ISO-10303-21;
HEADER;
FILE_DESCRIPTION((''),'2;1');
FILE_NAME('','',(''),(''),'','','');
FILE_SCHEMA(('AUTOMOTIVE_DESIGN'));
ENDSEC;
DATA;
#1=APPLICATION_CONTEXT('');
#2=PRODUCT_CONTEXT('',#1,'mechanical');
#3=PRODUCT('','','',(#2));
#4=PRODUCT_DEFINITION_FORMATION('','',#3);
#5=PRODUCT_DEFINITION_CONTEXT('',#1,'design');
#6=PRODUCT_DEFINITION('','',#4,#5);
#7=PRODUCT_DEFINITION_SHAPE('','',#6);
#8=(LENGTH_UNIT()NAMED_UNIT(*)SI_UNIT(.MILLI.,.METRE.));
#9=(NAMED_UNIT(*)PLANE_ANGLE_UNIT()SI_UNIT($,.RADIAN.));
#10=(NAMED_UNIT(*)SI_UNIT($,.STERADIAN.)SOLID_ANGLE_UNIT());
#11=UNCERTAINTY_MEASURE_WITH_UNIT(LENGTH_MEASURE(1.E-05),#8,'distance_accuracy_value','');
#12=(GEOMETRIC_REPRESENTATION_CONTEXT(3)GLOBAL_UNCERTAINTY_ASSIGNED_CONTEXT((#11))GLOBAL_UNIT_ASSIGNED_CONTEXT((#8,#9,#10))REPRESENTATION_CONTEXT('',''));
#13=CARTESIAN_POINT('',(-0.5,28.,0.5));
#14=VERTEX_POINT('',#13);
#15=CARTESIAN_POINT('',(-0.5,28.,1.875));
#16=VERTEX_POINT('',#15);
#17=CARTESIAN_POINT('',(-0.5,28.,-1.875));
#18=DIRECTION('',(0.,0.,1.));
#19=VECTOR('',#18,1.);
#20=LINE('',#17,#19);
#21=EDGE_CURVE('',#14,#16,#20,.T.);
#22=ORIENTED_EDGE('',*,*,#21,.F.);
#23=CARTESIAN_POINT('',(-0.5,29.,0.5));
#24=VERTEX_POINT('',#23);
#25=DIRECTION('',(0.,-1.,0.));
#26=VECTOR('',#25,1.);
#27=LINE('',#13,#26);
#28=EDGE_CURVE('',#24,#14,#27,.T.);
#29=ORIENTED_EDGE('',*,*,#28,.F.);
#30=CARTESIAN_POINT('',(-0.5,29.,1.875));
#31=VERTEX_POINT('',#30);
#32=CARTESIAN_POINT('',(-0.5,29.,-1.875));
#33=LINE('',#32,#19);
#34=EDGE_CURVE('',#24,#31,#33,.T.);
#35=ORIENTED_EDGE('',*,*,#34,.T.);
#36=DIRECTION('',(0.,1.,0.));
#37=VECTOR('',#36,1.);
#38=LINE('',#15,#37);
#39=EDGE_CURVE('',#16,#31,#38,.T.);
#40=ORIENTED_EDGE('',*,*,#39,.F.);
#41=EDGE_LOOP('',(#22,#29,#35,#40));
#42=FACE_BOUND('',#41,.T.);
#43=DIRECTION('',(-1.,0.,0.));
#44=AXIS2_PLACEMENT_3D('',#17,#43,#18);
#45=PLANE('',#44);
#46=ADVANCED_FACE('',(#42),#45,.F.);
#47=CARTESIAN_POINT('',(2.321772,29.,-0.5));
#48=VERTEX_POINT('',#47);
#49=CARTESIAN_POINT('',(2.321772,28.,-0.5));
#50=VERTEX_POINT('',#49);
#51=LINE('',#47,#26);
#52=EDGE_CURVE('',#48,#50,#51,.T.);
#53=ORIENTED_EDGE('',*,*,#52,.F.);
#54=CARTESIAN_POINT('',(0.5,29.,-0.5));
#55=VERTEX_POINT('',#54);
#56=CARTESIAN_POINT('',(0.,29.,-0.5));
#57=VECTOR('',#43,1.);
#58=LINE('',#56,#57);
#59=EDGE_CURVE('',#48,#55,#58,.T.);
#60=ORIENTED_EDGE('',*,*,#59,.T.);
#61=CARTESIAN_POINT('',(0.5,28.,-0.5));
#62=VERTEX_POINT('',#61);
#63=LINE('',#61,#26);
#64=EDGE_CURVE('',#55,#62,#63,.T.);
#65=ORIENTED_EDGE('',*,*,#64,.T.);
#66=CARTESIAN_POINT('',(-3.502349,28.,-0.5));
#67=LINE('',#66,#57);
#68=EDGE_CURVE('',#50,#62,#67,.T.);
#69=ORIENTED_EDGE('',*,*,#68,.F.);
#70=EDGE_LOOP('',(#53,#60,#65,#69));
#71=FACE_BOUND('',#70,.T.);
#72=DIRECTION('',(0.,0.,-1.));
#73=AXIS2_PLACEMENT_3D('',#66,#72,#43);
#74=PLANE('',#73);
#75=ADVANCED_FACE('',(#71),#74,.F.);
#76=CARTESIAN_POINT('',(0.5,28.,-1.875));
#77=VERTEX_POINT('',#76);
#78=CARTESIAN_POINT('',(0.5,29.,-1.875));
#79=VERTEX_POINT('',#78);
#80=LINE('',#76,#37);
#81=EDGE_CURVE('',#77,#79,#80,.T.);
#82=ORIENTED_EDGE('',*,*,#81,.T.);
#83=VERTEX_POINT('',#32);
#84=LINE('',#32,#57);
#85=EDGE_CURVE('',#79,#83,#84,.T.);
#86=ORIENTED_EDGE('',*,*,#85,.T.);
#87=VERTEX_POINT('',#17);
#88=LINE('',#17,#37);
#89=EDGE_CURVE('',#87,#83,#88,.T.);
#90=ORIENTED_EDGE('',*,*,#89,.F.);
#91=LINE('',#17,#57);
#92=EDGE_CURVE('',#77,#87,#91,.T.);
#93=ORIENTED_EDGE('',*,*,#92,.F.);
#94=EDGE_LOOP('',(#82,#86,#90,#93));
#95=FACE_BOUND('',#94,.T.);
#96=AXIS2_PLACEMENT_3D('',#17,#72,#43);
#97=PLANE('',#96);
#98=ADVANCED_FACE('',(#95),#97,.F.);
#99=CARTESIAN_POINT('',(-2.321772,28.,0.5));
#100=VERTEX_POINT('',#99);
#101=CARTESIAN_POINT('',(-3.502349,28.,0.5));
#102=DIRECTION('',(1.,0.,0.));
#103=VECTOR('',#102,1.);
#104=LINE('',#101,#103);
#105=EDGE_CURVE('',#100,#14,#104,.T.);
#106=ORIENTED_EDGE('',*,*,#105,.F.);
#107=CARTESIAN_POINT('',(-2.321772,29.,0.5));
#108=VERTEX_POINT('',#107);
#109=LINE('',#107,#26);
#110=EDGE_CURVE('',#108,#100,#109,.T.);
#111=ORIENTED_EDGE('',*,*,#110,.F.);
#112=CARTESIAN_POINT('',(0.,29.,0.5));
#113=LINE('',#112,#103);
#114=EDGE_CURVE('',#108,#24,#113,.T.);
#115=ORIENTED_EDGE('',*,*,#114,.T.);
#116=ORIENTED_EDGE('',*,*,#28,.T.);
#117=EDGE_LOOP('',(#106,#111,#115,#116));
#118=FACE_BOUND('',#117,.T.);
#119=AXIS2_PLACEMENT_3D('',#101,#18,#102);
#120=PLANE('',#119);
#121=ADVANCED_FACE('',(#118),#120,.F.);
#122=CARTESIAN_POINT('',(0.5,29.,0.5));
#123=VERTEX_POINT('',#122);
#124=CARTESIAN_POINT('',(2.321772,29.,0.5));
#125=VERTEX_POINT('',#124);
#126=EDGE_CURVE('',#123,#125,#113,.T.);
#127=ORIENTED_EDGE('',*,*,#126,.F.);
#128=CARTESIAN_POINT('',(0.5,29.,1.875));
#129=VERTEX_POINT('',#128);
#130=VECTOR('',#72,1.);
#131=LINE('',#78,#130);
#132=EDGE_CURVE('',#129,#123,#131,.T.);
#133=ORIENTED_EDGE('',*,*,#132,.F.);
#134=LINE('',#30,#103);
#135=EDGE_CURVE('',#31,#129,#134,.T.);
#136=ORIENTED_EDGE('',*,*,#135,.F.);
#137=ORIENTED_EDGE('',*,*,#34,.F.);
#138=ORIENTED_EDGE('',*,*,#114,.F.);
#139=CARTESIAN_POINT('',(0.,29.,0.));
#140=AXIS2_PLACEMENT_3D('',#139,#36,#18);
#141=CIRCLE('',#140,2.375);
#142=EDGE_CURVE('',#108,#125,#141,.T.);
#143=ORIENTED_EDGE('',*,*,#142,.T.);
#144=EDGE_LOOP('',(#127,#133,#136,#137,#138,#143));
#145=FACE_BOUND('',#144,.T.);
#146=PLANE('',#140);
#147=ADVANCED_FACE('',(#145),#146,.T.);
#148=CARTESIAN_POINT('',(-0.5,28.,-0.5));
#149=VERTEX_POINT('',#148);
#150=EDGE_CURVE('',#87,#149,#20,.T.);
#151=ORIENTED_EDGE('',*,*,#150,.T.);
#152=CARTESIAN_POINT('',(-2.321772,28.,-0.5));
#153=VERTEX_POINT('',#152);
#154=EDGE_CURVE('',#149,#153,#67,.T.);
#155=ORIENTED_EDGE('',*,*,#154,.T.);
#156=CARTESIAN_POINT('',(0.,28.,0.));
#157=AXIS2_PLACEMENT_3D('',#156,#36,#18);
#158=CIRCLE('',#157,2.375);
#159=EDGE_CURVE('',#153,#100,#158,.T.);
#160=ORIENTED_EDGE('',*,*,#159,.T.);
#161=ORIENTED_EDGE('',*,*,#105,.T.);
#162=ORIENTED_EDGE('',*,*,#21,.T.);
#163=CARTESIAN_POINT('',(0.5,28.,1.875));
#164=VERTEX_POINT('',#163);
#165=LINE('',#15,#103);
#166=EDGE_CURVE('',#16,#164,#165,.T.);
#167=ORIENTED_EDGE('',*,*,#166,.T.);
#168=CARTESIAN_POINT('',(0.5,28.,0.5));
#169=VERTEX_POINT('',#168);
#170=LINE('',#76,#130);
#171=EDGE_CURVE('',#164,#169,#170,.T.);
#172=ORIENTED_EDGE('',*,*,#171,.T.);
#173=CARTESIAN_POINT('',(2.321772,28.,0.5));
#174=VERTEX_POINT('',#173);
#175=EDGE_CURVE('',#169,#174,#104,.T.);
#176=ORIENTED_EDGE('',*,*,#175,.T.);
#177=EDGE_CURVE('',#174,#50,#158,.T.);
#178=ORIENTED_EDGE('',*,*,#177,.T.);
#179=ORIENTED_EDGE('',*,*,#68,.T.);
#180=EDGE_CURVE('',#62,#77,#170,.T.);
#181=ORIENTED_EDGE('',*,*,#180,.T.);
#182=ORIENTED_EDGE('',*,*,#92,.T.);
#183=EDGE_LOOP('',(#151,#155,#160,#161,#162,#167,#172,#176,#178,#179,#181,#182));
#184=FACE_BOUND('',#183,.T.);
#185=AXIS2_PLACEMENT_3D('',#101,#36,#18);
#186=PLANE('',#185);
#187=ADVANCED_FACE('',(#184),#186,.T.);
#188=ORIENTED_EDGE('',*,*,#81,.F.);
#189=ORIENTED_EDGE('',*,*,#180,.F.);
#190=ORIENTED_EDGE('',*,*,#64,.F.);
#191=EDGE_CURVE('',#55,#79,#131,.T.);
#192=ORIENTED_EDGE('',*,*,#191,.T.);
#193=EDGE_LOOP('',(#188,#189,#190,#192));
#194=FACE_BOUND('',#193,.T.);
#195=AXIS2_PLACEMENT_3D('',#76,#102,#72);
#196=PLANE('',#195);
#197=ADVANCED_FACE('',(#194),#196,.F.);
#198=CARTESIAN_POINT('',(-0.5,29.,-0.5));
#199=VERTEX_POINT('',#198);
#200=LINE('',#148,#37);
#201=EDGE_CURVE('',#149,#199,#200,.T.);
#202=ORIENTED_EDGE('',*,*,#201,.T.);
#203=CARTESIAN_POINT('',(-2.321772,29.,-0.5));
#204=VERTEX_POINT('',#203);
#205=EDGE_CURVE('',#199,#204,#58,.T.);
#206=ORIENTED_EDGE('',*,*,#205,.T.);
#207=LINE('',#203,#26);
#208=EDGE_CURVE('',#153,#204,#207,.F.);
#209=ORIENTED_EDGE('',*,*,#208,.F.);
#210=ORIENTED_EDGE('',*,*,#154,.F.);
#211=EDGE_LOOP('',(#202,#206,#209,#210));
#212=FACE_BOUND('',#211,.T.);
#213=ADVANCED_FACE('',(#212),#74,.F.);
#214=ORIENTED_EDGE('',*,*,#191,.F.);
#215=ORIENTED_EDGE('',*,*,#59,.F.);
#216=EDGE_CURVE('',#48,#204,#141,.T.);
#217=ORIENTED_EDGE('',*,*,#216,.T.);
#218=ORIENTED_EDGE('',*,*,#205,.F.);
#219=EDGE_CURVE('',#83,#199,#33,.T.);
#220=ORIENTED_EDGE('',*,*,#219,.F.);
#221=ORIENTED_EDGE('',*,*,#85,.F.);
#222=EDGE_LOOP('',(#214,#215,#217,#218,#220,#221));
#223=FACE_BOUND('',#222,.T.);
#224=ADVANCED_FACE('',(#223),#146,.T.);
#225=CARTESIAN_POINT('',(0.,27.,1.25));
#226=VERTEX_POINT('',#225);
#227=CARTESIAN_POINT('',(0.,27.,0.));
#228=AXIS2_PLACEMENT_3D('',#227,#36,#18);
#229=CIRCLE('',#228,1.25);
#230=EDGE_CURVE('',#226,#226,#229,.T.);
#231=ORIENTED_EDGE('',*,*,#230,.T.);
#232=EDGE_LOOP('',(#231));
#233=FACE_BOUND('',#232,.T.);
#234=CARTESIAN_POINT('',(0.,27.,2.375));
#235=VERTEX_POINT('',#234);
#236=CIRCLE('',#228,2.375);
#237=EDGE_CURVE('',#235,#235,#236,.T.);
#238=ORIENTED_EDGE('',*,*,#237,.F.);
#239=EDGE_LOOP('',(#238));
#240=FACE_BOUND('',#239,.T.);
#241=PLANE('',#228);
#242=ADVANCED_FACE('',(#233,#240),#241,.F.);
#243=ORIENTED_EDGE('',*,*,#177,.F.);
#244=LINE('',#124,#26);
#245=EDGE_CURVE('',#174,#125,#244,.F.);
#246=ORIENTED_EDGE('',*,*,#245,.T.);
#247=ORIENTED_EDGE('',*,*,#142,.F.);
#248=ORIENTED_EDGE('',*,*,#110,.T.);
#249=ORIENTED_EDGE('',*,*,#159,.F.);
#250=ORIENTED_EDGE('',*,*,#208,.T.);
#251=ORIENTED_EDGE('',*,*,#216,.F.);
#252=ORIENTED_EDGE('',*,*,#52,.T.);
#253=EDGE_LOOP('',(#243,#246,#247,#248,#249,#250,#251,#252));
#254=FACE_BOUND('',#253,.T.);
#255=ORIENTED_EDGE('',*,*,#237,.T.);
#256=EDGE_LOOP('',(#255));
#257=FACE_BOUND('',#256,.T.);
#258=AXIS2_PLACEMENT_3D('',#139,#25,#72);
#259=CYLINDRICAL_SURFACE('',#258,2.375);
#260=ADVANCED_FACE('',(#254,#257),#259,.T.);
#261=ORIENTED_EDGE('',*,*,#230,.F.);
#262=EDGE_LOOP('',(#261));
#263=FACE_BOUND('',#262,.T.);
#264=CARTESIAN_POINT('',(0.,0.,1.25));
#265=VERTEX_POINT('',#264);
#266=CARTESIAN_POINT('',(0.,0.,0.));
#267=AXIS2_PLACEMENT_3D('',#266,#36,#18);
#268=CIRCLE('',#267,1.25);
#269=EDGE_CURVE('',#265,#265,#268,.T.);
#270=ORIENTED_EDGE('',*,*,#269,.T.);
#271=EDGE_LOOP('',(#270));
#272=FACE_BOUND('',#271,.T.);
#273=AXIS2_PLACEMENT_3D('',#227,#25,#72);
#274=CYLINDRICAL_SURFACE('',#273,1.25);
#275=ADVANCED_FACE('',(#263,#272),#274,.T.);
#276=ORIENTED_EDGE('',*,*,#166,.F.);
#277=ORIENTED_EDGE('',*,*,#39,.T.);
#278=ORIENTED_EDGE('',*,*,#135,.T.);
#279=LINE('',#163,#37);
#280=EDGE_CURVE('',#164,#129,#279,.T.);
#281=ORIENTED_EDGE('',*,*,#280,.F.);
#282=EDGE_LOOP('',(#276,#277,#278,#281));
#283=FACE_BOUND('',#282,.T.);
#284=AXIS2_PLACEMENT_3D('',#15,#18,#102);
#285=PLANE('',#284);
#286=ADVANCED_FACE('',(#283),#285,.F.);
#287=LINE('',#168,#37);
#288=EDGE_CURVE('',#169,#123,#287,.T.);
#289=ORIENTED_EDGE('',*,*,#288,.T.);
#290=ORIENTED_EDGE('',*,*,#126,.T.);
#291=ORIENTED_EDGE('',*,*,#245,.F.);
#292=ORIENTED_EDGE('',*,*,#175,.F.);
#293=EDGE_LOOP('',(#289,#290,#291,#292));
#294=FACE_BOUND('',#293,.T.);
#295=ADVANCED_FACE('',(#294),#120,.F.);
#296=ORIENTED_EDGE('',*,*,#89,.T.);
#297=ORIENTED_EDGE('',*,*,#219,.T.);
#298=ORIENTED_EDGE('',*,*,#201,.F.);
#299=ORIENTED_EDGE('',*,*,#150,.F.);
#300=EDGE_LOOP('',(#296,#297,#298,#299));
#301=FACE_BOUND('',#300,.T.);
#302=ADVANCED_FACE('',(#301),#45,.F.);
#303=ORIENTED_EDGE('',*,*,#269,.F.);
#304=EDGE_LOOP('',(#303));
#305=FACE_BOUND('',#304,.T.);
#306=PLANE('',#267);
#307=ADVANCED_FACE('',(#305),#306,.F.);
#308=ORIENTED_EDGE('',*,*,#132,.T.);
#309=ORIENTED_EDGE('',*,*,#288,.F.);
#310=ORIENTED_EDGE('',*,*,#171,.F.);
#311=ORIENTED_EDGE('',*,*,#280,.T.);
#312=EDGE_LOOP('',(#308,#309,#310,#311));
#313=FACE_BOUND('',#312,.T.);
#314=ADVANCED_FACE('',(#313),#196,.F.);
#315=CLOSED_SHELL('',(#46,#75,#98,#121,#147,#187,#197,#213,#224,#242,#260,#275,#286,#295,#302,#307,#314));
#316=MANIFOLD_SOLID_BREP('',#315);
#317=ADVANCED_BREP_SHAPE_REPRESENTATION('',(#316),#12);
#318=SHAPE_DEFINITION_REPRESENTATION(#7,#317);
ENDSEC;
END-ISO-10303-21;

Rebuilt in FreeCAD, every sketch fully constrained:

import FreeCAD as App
import Part
import Sketcher

V = App.Vector

doc = App.newDocument("Part")
body = doc.addObject("PartDesign::Body", "Body")

# Sketch on XZ plane
sketch1 = body.newObject("Sketcher::SketchObject", "Sketch")
sketch1.AttachmentSupport = (doc.getObject("XZ_Plane"), [""])
sketch1.MapMode = "FlatFace"
sketch1.addGeometry(Part.Circle(V(0, 0, 0), V(0, 0, 1), 1.2), False)
sketch1.addConstraint([
    Sketcher.Constraint("Coincident", 0, 3, -1, 1),
    Sketcher.Constraint("Diameter", 0, 2.5),
])
pad1 = body.newObject("PartDesign::Pad", "Pad")
pad1.Profile = sketch1
pad1.Length = 27
pad1.Reversed = True

# Sketch on XZ plane
sketch2 = body.newObject("Sketcher::SketchObject", "Sketch001")
sketch2.AttachmentSupport = (doc.getObject("XZ_Plane"), [""])
sketch2.MapMode = "FlatFace"
sketch2.AttachmentOffset = App.Placement(V(0, 0, -27), App.Rotation())
sketch2.addGeometry(Part.Circle(V(0, 0, 0), V(0, 0, 1), 2.4), False)
sketch2.addConstraint([
    Sketcher.Constraint("Coincident", 0, 3, -1, 1),
    Sketcher.Constraint("Diameter", 0, 4.75),
])
pad2 = body.newObject("PartDesign::Pad", "Pad001")
pad2.Profile = sketch2
pad2.Length = 2
pad2.Reversed = True

# Sketch on XZ plane
sketch3 = body.newObject("Sketcher::SketchObject", "Sketch002")
sketch3.AttachmentSupport = (doc.getObject("XZ_Plane"), [""])
sketch3.MapMode = "FlatFace"
sketch3.AttachmentOffset = App.Placement(V(0, 0, -29), App.Rotation())
sketch3.addGeometry([
    Part.LineSegment(V(3.5, 0.5, 0), V(3.5, -0.5, 0)),
    Part.LineSegment(V(3.5, -0.5, 0), V(-3.5, -0.5, 0)),
    Part.LineSegment(V(-3.5, -0.5, 0), V(-3.5, 0.5, 0)),
    Part.LineSegment(V(-3.5, 0.5, 0), V(3.5, 0.5, 0)),
], False)
sketch3.addConstraint([
    Sketcher.Constraint("Coincident", 0, 2, 1, 1),
    Sketcher.Constraint("Coincident", 1, 2, 2, 1),
    Sketcher.Constraint("Coincident", 2, 2, 3, 1),
    Sketcher.Constraint("Coincident", 3, 2, 0, 1),
    Sketcher.Constraint("Vertical", 0),
    Sketcher.Constraint("Horizontal", 1),
    Sketcher.Constraint("Vertical", 2),
    Sketcher.Constraint("Horizontal", 3),
    Sketcher.Constraint("Symmetric", 0, 2, 2, 2, -1, 1),
    Sketcher.Constraint("DistanceY", 0, 2, 0, 1, 1.0),
    Sketcher.Constraint("DistanceX", 1, 2, 1, 1, 7.004697),
])
pocket1 = body.newObject("PartDesign::Pocket", "Pocket")
pocket1.Profile = sketch3
pocket1.Length = 1
pocket1.Reversed = True

# Sketch on XZ plane
sketch4 = body.newObject("Sketcher::SketchObject", "Sketch003")
sketch4.AttachmentSupport = (doc.getObject("XZ_Plane"), [""])
sketch4.MapMode = "FlatFace"
sketch4.AttachmentOffset = App.Placement(V(0, 0, -29), App.Rotation())
sketch4.addGeometry([
    Part.LineSegment(V(0.5, 1.9, 0), V(0.5, -1.9, 0)),
    Part.LineSegment(V(0.5, -1.9, 0), V(-0.5, -1.9, 0)),
    Part.LineSegment(V(-0.5, -1.9, 0), V(-0.5, 1.9, 0)),
    Part.LineSegment(V(-0.5, 1.9, 0), V(0.5, 1.9, 0)),
], False)
sketch4.addConstraint([
    Sketcher.Constraint("Coincident", 0, 2, 1, 1),
    Sketcher.Constraint("Coincident", 1, 2, 2, 1),
    Sketcher.Constraint("Coincident", 2, 2, 3, 1),
    Sketcher.Constraint("Coincident", 3, 2, 0, 1),
    Sketcher.Constraint("Vertical", 0),
    Sketcher.Constraint("Horizontal", 1),
    Sketcher.Constraint("Vertical", 2),
    Sketcher.Constraint("Horizontal", 3),
    Sketcher.Constraint("Symmetric", 0, 2, 2, 2, -1, 1),
    Sketcher.Constraint("DistanceX", 1, 2, 1, 1, 1.0),
    Sketcher.Constraint("DistanceY", 0, 2, 0, 1, 3.75),
])
pocket2 = body.newObject("PartDesign::Pocket", "Pocket001")
pocket2.Profile = sketch4
pocket2.Length = 1
pocket2.Reversed = True

doc.recompute()
